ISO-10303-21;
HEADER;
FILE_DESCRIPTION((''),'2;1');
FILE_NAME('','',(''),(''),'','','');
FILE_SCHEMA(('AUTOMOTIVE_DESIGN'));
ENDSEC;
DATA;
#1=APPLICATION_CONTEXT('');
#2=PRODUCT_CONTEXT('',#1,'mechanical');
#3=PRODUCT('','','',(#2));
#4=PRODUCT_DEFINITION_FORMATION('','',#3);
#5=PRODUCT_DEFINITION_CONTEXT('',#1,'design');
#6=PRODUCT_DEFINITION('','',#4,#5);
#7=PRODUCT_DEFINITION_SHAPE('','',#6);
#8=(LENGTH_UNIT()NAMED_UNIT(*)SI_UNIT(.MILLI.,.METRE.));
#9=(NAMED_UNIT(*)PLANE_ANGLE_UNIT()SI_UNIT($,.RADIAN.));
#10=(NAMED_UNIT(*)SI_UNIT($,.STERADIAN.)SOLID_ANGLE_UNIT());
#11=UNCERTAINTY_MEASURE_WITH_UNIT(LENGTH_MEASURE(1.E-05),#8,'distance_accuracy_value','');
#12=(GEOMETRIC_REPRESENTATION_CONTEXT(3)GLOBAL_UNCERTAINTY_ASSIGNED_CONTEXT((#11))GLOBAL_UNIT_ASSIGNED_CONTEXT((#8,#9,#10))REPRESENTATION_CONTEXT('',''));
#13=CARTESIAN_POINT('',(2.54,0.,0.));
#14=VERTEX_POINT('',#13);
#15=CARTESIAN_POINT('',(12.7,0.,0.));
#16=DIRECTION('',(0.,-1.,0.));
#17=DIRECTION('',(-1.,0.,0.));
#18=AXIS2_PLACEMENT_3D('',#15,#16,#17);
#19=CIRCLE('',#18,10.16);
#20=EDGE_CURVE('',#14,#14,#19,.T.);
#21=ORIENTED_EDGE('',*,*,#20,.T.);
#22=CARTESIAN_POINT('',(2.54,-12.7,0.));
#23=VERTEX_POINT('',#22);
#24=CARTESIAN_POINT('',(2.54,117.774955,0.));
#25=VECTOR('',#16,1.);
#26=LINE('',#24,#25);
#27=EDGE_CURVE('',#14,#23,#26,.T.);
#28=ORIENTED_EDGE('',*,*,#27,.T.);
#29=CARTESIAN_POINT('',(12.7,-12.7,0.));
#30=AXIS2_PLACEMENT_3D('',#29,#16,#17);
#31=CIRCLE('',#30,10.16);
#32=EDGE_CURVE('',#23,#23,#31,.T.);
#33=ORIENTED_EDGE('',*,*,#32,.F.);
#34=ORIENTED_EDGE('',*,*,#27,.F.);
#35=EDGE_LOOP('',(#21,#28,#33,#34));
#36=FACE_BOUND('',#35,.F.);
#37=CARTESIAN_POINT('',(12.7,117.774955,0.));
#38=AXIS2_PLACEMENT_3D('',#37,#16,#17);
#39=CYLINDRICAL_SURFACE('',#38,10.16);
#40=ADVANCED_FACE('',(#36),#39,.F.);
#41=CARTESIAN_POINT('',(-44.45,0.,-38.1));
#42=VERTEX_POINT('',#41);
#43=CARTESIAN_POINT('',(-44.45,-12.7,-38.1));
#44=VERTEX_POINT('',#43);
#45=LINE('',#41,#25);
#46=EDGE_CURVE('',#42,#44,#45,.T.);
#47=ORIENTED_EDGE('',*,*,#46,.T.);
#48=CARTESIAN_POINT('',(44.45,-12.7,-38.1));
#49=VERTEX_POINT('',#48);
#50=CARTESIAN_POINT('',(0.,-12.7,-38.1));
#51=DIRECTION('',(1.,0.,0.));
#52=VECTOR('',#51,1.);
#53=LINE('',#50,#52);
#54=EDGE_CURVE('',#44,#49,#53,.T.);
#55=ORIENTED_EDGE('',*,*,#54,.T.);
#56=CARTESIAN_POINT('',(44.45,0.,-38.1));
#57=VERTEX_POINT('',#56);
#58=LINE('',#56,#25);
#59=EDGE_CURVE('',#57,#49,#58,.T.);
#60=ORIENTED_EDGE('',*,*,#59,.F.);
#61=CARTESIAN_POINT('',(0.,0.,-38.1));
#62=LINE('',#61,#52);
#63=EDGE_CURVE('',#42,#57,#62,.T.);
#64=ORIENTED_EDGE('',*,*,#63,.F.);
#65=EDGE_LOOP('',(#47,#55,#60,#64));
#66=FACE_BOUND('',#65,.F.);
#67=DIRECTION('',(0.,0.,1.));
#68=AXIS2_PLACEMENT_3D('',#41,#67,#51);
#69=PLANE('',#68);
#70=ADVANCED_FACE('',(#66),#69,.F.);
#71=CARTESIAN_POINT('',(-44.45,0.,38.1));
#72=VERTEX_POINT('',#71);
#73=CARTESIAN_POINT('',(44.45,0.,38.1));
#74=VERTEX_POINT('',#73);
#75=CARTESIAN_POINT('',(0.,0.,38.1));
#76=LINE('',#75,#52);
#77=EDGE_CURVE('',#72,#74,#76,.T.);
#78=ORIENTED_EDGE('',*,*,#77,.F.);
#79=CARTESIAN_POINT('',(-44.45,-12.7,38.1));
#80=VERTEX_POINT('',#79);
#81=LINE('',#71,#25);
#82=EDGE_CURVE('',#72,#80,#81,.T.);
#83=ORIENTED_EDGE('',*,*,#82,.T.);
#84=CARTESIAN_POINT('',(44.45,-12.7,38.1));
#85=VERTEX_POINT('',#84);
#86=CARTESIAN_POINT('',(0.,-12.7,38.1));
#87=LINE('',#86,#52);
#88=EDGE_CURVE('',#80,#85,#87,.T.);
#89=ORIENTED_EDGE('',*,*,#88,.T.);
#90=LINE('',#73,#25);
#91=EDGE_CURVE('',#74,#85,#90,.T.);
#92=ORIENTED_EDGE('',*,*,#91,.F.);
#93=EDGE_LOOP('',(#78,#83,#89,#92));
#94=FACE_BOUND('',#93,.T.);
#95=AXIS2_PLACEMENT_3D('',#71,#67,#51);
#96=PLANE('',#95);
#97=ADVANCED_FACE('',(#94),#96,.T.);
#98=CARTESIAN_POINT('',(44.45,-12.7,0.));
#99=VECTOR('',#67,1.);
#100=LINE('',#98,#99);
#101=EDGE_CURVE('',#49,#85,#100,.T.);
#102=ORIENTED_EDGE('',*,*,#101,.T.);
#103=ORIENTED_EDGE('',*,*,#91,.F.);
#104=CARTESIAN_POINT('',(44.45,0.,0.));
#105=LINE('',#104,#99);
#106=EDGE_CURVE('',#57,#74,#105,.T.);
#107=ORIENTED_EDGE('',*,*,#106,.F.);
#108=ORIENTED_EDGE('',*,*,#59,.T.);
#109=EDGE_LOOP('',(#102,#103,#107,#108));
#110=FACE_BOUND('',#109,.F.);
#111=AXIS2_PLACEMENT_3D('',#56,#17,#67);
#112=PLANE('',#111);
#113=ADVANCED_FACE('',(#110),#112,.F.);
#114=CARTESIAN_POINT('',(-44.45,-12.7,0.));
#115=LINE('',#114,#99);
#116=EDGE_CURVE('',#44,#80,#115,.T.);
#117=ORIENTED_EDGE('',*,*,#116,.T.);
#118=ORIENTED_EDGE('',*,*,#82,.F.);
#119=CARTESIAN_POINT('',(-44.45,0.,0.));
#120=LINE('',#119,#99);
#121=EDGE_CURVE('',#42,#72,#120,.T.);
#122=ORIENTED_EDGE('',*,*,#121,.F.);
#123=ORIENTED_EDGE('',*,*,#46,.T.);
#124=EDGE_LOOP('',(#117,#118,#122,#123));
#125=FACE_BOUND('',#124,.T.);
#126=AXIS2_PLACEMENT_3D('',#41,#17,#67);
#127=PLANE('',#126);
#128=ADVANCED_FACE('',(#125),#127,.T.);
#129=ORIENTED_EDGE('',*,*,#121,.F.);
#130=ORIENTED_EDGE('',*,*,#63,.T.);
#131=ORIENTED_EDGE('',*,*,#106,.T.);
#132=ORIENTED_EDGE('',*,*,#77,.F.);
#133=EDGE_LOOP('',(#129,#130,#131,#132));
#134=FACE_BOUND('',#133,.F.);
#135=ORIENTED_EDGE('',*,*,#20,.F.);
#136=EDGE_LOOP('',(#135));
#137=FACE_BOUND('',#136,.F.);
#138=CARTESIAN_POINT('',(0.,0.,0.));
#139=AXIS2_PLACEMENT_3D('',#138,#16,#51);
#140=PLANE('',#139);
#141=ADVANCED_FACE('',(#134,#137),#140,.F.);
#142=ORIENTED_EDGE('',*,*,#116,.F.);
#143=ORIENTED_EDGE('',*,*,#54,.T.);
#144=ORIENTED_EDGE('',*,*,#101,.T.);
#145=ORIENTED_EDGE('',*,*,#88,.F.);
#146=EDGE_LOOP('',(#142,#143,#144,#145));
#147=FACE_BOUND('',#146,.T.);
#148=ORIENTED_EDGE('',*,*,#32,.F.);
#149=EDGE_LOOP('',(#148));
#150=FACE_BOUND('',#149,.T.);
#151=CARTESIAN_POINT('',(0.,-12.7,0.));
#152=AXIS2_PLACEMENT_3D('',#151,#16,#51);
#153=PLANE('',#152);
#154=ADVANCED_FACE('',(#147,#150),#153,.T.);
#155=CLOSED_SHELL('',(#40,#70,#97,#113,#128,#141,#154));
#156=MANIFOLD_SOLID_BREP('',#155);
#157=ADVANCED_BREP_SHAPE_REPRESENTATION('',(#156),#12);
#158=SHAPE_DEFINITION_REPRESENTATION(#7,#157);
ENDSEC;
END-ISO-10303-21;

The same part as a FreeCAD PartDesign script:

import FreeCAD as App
import Part
import Sketcher
from FreeCAD import Vector
Q = App.Units.Quantity

doc = App.newDocument("Part")
body = doc.addObject("PartDesign::Body", "Body")

sketch1 = body.newObject("Sketcher::SketchObject", "Sketch")
sketch1.AttachmentSupport = (doc.getObject("XZ_Plane"), [""])
sketch1.MapMode = "FlatFace"
sketch1.addGeometry(Part.LineSegment(Vector(-44, 38, 0), Vector(-44, -38, 0)), False)
sketch1.addGeometry(Part.LineSegment(Vector(-44, -38, 0), Vector(44, -38, 0)), False)
sketch1.addGeometry(Part.LineSegment(Vector(44, -38, 0), Vector(44, 38, 0)), False)
sketch1.addGeometry(Part.LineSegment(Vector(44, 38, 0), Vector(-44, 38, 0)), False)
sketch1.addConstraint(Sketcher.Constraint("Coincident", 0, 2, 1, 1))
sketch1.addConstraint(Sketcher.Constraint("Coincident", 1, 2, 2, 1))
sketch1.addConstraint(Sketcher.Constraint("Coincident", 2, 2, 3, 1))
sketch1.addConstraint(Sketcher.Constraint("Coincident", 3, 2, 0, 1))
sketch1.addConstraint(Sketcher.Constraint("Vertical", 0))
sketch1.addConstraint(Sketcher.Constraint("Horizontal", 1))
sketch1.addConstraint(Sketcher.Constraint("Vertical", 2))
sketch1.addConstraint(Sketcher.Constraint("Horizontal", 3))
sketch1.addConstraint(Sketcher.Constraint("Symmetric", 0, 2, 2, 2, -1, 1))
sketch1.addConstraint(Sketcher.Constraint("DistanceY", 0, 2, 0, 1, Q("3 in")))
sketch1.addConstraint(Sketcher.Constraint("DistanceX", 1, 1, 1, 2, Q("3.5 in")))
pad1 = body.newObject("PartDesign::Pad", "Pad")
pad1.Profile = sketch1
pad1.Length = Q("0.5 in")

sketch2 = body.newObject("Sketcher::SketchObject", "Sketch001")
sketch2.AttachmentSupport = (doc.getObject("XZ_Plane"), [""])
sketch2.MapMode = "FlatFace"
sketch2.addGeometry(Part.Circle(Vector(13, 0, 0), Vector(0, 0, 1), 10), False)
sketch2.addConstraint(Sketcher.Constraint("PointOnObject", 0, 3, -1))
sketch2.addConstraint(Sketcher.Constraint("Diameter", 0, Q("0.8 in")))
sketch2.addConstraint(Sketcher.Constraint("DistanceX", -1, 1, 0, 3, Q("0.5 in")))
doc.recompute()
hole = body.newObject("PartDesign::Hole", "Hole")
hole.Profile = sketch2
hole.ThreadType = "None"
hole.Diameter = Q("0.8 in")
hole.DepthType = "ThroughAll"
hole.Reversed = True

doc.recompute()
